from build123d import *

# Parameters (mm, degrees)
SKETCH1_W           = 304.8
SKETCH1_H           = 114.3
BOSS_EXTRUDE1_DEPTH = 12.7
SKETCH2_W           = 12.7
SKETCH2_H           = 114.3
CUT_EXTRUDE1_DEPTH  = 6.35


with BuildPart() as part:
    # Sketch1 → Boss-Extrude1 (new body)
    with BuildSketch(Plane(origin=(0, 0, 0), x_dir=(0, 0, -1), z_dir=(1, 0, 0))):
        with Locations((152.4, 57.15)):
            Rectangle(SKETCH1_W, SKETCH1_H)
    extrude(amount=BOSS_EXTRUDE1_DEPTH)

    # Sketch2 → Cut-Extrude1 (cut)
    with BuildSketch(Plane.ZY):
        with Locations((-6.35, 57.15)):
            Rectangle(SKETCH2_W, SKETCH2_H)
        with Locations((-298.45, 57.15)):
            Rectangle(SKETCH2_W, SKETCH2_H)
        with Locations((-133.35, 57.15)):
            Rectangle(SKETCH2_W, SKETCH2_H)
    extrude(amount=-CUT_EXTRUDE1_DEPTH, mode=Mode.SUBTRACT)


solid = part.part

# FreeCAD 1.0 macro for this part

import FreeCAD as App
import Part
import Sketcher
Q = App.Units.Quantity


def add_polygon(sketch, points):
    """Adds a closed chain of lines whose ends are joined by coincident constraints."""
    first, n = sketch.GeometryCount, len(points)
    for a, b in zip(points, points[1:] + points[:1]):
        sketch.addGeometry(Part.LineSegment(App.Vector(*a, 0), App.Vector(*b, 0)), False)
    for i in range(n):
        sketch.addConstraint(Sketcher.Constraint("Coincident", first + i, 2, first + (i + 1) % n, 1))

doc = App.newDocument("Part")
body = doc.addObject("PartDesign::Body", "Body")

# Sketch on YZ plane
sketch1 = body.newObject("Sketcher::SketchObject", "Sketch")
sketch1.AttachmentSupport = (doc.getObject("YZ_Plane"), [""])
sketch1.MapMode = "FlatFace"
add_polygon(sketch1, [(114.3, 0), (0, 0), (0, -304.8), (114.3, -304.8)])  # lines 0-3
sketch1.addConstraint(Sketcher.Constraint("Horizontal", 0))
sketch1.addConstraint(Sketcher.Constraint("Vertical", 1))
sketch1.addConstraint(Sketcher.Constraint("Horizontal", 2))
sketch1.addConstraint(Sketcher.Constraint("Vertical", 3))
sketch1.addConstraint(Sketcher.Constraint("Coincident", 0, 2, -1, 1))
sketch1.addConstraint(Sketcher.Constraint("DistanceY", 1, 2, 1, 1, Q("12 in")))
sketch1.addConstraint(Sketcher.Constraint("DistanceX", 0, 2, 0, 1, Q("4.5 in")))
pad1 = body.newObject("PartDesign::Pad", "Pad")
pad1.Profile = sketch1
pad1.Length = Q("0.5 in")

# Sketch on YZ plane
sketch2 = body.newObject("Sketcher::SketchObject", "Sketch001")
sketch2.AttachmentSupport = (doc.getObject("YZ_Plane"), [""])
sketch2.MapMode = "FlatFace"
add_polygon(sketch2, [(114.3, -12.7), (0, -12.7), (0, 0), (114.3, 0)])  # lines 0-3
add_polygon(sketch2, [(114.3, -304.8), (0, -304.8), (0, -292.1), (114.3, -292.1)])  # lines 4-7
add_polygon(sketch2, [(114.3, -139.7), (0, -139.7), (0, -127), (114.3, -127)])  # lines 8-11
sketch2.addConstraint(Sketcher.Constraint("Horizontal", 0))
sketch2.addConstraint(Sketcher.Constraint("Vertical", 1))
sketch2.addConstraint(Sketcher.Constraint("Horizontal", 2))
sketch2.addConstraint(Sketcher.Constraint("Vertical", 3))
sketch2.addConstraint(Sketcher.Constraint("Horizontal", 4))
sketch2.addConstraint(Sketcher.Constraint("Vertical", 5))
sketch2.addConstraint(Sketcher.Constraint("Horizontal", 6))
sketch2.addConstraint(Sketcher.Constraint("Vertical", 7))
sketch2.addConstraint(Sketcher.Constraint("Horizontal", 8))
sketch2.addConstraint(Sketcher.Constraint("Vertical", 9))
sketch2.addConstraint(Sketcher.Constraint("Horizontal", 10))
sketch2.addConstraint(Sketcher.Constraint("Vertical", 11))
sketch2.addConstraint(Sketcher.Constraint("Coincident", 1, 2, -1, 1))
sketch2.addConstraint(Sketcher.Constraint("PointOnObject", 4, 2, -2))
sketch2.addConstraint(Sketcher.Constraint("PointOnObject", 8, 2, -2))
sketch2.addConstraint(Sketcher.Constraint("Vertical", 3, 2, 6, 2))
sketch2.addConstraint(Sketcher.Constraint("Vertical", 7, 2, 10, 2))
sketch2.addConstraint(Sketcher.Constraint("Equal", 3, 5))
sketch2.addConstraint(Sketcher.Constraint("Equal", 7, 9))
sketch2.addConstraint(Sketcher.Constraint("DistanceX", 0, 2, 0, 1, Q("4.5 in")))
sketch2.addConstraint(Sketcher.Constraint("DistanceY", 1, 1, 1, 2, Q("0.5 in")))
sketch2.addConstraint(Sketcher.Constraint("DistanceY", 4, 2, -1, 1, Q("12 in")))
sketch2.addConstraint(Sketcher.Constraint("DistanceY", 9, 2, -1, 1, Q("5 in")))
pocket1 = body.newObject("PartDesign::Pocket", "Pocket")
pocket1.Profile = sketch2
pocket1.Length = Q("0.25 in")
pocket1.Reversed = True

doc.recompute()
